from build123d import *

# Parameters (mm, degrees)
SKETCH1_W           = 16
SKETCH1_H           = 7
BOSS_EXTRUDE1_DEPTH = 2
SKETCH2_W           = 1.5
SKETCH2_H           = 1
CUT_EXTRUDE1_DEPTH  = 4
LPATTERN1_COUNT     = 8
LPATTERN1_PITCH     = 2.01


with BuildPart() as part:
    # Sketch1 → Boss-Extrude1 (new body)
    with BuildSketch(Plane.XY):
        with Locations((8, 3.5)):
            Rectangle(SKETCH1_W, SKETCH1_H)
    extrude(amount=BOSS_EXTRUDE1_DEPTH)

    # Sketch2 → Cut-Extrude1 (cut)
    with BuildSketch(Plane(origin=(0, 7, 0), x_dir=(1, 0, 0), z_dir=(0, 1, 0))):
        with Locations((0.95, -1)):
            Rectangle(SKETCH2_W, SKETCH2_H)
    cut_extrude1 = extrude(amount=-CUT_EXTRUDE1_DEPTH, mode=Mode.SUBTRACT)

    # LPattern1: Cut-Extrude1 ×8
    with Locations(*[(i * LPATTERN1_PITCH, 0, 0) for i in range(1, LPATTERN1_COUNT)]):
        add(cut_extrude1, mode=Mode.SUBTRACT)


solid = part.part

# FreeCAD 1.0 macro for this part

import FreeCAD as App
import Part
import Sketcher

V = App.Vector
Q = App.Units.Quantity

doc = App.newDocument("Part")
params = doc.addObject("Spreadsheet::Sheet", "Params")
for row, (alias, value) in enumerate([
    ("sketch1_width", "16 mm"),
    ("sketch1_height", "7 mm"),
    ("pad1_length", "2 mm"),
    ("sketch2_height", "1 mm"),
    ("sketch2_width", "1.5 mm"),
    ("pocket1_length", "4 mm"),
    ("linearpattern_pitch", "2.01 mm"),
], start=1):
    params.set(f"A{row}", alias)
    params.set(f"B{row}", "=" + value)
    params.setAlias(f"B{row}", alias)

body = doc.addObject("PartDesign::Body", "Body")

# Sketch on XY plane
sketch1 = doc.addObject("Sketcher::SketchObject", "Sketch")
body.addObject(sketch1)
sketch1.AttachmentSupport = (doc.XY_Plane, [""])
sketch1.MapMode = "FlatFace"
sketch1.addGeometry([
    Part.LineSegment(V(0, 7, 0), V(0, 0, 0)),
    Part.LineSegment(V(0, 0, 0), V(16, 0, 0)),
    Part.LineSegment(V(16, 0, 0), V(16, 7, 0)),
    Part.LineSegment(V(16, 7, 0), V(0, 7, 0)),
], False)
sketch1.addConstraint([
    Sketcher.Constraint("Coincident", 0, 2, 1, 1),
    Sketcher.Constraint("Coincident", 1, 2, 2, 1),
    Sketcher.Constraint("Coincident", 2, 2, 3, 1),
    Sketcher.Constraint("Coincident", 3, 2, 0, 1),
    Sketcher.Constraint("Vertical", 0),
    Sketcher.Constraint("Horizontal", 1),
    Sketcher.Constraint("Vertical", 2),
    Sketcher.Constraint("Horizontal", 3),
    Sketcher.Constraint("Coincident", 0, 2, -1, 1),
    Sketcher.Constraint("DistanceX", 1, 1, 1, 2, Q("16 mm")),
    Sketcher.Constraint("DistanceY", 0, 2, 0, 1, Q("7 mm")),
])
sketch1.setExpression("Constraints[9]", "Params.sketch1_width")
sketch1.setExpression("Constraints[10]", "Params.sketch1_height")
pad1 = doc.addObject("PartDesign::Pad", "Pad")
body.addObject(pad1)
pad1.Profile = sketch1
pad1.setExpression("Length", "Params.pad1_length")

# Sketch on XZ plane
sketch2 = doc.addObject("Sketcher::SketchObject", "Sketch001")
body.addObject(sketch2)
sketch2.AttachmentSupport = (doc.XZ_Plane, [""])
sketch2.MapMode = "FlatFace"
sketch2.AttachmentOffset = App.Placement(V(0, 0, -7), App.Rotation())
sketch2.addGeometry([
    Part.LineSegment(V(0.2, 0.5, 0), V(0.2, 1.5, 0)),
    Part.LineSegment(V(0.2, 1.5, 0), V(1.7, 1.5, 0)),
    Part.LineSegment(V(1.7, 1.5, 0), V(1.7, 0.5, 0)),
    Part.LineSegment(V(1.7, 0.5, 0), V(0.2, 0.5, 0)),
], False)
sketch2.addConstraint([
    Sketcher.Constraint("Coincident", 0, 2, 1, 1),
    Sketcher.Constraint("Coincident", 1, 2, 2, 1),
    Sketcher.Constraint("Coincident", 2, 2, 3, 1),
    Sketcher.Constraint("Coincident", 3, 2, 0, 1),
    Sketcher.Constraint("Vertical", 0),
    Sketcher.Constraint("Horizontal", 1),
    Sketcher.Constraint("Vertical", 2),
    Sketcher.Constraint("Horizontal", 3),
    Sketcher.Constraint("DistanceY", 0, 1, 0, 2, Q("1 mm")),
    Sketcher.Constraint("DistanceX", 1, 1, 1, 2, Q("1.5 mm")),
    Sketcher.Constraint("DistanceX", -1, 1, 0, 2, Q("0.2 mm")),
    Sketcher.Constraint("DistanceY", -1, 1, 0, 2, Q("1.5 mm")),
])
sketch2.setExpression("Constraints[8]", "Params.sketch2_height")
sketch2.setExpression("Constraints[9]", "Params.sketch2_width")
pocket1 = doc.addObject("PartDesign::Pocket", "Pocket")
body.addObject(pocket1)
pocket1.Profile = sketch2
pocket1.setExpression("Length", "Params.pocket1_length")
pocket1.Reversed = True
doc.recompute()

linearpattern = doc.addObject("PartDesign::LinearPattern", "LinearPattern")
body.addObject(linearpattern)
linearpattern.Originals = [pocket1]
linearpattern.Direction = (doc.X_Axis, [""])
linearpattern.Mode = "offset"
linearpattern.setExpression("Offset", "Params.linearpattern_pitch")
linearpattern.Occurrences = 8
body.Tip = linearpattern

doc.recompute()
